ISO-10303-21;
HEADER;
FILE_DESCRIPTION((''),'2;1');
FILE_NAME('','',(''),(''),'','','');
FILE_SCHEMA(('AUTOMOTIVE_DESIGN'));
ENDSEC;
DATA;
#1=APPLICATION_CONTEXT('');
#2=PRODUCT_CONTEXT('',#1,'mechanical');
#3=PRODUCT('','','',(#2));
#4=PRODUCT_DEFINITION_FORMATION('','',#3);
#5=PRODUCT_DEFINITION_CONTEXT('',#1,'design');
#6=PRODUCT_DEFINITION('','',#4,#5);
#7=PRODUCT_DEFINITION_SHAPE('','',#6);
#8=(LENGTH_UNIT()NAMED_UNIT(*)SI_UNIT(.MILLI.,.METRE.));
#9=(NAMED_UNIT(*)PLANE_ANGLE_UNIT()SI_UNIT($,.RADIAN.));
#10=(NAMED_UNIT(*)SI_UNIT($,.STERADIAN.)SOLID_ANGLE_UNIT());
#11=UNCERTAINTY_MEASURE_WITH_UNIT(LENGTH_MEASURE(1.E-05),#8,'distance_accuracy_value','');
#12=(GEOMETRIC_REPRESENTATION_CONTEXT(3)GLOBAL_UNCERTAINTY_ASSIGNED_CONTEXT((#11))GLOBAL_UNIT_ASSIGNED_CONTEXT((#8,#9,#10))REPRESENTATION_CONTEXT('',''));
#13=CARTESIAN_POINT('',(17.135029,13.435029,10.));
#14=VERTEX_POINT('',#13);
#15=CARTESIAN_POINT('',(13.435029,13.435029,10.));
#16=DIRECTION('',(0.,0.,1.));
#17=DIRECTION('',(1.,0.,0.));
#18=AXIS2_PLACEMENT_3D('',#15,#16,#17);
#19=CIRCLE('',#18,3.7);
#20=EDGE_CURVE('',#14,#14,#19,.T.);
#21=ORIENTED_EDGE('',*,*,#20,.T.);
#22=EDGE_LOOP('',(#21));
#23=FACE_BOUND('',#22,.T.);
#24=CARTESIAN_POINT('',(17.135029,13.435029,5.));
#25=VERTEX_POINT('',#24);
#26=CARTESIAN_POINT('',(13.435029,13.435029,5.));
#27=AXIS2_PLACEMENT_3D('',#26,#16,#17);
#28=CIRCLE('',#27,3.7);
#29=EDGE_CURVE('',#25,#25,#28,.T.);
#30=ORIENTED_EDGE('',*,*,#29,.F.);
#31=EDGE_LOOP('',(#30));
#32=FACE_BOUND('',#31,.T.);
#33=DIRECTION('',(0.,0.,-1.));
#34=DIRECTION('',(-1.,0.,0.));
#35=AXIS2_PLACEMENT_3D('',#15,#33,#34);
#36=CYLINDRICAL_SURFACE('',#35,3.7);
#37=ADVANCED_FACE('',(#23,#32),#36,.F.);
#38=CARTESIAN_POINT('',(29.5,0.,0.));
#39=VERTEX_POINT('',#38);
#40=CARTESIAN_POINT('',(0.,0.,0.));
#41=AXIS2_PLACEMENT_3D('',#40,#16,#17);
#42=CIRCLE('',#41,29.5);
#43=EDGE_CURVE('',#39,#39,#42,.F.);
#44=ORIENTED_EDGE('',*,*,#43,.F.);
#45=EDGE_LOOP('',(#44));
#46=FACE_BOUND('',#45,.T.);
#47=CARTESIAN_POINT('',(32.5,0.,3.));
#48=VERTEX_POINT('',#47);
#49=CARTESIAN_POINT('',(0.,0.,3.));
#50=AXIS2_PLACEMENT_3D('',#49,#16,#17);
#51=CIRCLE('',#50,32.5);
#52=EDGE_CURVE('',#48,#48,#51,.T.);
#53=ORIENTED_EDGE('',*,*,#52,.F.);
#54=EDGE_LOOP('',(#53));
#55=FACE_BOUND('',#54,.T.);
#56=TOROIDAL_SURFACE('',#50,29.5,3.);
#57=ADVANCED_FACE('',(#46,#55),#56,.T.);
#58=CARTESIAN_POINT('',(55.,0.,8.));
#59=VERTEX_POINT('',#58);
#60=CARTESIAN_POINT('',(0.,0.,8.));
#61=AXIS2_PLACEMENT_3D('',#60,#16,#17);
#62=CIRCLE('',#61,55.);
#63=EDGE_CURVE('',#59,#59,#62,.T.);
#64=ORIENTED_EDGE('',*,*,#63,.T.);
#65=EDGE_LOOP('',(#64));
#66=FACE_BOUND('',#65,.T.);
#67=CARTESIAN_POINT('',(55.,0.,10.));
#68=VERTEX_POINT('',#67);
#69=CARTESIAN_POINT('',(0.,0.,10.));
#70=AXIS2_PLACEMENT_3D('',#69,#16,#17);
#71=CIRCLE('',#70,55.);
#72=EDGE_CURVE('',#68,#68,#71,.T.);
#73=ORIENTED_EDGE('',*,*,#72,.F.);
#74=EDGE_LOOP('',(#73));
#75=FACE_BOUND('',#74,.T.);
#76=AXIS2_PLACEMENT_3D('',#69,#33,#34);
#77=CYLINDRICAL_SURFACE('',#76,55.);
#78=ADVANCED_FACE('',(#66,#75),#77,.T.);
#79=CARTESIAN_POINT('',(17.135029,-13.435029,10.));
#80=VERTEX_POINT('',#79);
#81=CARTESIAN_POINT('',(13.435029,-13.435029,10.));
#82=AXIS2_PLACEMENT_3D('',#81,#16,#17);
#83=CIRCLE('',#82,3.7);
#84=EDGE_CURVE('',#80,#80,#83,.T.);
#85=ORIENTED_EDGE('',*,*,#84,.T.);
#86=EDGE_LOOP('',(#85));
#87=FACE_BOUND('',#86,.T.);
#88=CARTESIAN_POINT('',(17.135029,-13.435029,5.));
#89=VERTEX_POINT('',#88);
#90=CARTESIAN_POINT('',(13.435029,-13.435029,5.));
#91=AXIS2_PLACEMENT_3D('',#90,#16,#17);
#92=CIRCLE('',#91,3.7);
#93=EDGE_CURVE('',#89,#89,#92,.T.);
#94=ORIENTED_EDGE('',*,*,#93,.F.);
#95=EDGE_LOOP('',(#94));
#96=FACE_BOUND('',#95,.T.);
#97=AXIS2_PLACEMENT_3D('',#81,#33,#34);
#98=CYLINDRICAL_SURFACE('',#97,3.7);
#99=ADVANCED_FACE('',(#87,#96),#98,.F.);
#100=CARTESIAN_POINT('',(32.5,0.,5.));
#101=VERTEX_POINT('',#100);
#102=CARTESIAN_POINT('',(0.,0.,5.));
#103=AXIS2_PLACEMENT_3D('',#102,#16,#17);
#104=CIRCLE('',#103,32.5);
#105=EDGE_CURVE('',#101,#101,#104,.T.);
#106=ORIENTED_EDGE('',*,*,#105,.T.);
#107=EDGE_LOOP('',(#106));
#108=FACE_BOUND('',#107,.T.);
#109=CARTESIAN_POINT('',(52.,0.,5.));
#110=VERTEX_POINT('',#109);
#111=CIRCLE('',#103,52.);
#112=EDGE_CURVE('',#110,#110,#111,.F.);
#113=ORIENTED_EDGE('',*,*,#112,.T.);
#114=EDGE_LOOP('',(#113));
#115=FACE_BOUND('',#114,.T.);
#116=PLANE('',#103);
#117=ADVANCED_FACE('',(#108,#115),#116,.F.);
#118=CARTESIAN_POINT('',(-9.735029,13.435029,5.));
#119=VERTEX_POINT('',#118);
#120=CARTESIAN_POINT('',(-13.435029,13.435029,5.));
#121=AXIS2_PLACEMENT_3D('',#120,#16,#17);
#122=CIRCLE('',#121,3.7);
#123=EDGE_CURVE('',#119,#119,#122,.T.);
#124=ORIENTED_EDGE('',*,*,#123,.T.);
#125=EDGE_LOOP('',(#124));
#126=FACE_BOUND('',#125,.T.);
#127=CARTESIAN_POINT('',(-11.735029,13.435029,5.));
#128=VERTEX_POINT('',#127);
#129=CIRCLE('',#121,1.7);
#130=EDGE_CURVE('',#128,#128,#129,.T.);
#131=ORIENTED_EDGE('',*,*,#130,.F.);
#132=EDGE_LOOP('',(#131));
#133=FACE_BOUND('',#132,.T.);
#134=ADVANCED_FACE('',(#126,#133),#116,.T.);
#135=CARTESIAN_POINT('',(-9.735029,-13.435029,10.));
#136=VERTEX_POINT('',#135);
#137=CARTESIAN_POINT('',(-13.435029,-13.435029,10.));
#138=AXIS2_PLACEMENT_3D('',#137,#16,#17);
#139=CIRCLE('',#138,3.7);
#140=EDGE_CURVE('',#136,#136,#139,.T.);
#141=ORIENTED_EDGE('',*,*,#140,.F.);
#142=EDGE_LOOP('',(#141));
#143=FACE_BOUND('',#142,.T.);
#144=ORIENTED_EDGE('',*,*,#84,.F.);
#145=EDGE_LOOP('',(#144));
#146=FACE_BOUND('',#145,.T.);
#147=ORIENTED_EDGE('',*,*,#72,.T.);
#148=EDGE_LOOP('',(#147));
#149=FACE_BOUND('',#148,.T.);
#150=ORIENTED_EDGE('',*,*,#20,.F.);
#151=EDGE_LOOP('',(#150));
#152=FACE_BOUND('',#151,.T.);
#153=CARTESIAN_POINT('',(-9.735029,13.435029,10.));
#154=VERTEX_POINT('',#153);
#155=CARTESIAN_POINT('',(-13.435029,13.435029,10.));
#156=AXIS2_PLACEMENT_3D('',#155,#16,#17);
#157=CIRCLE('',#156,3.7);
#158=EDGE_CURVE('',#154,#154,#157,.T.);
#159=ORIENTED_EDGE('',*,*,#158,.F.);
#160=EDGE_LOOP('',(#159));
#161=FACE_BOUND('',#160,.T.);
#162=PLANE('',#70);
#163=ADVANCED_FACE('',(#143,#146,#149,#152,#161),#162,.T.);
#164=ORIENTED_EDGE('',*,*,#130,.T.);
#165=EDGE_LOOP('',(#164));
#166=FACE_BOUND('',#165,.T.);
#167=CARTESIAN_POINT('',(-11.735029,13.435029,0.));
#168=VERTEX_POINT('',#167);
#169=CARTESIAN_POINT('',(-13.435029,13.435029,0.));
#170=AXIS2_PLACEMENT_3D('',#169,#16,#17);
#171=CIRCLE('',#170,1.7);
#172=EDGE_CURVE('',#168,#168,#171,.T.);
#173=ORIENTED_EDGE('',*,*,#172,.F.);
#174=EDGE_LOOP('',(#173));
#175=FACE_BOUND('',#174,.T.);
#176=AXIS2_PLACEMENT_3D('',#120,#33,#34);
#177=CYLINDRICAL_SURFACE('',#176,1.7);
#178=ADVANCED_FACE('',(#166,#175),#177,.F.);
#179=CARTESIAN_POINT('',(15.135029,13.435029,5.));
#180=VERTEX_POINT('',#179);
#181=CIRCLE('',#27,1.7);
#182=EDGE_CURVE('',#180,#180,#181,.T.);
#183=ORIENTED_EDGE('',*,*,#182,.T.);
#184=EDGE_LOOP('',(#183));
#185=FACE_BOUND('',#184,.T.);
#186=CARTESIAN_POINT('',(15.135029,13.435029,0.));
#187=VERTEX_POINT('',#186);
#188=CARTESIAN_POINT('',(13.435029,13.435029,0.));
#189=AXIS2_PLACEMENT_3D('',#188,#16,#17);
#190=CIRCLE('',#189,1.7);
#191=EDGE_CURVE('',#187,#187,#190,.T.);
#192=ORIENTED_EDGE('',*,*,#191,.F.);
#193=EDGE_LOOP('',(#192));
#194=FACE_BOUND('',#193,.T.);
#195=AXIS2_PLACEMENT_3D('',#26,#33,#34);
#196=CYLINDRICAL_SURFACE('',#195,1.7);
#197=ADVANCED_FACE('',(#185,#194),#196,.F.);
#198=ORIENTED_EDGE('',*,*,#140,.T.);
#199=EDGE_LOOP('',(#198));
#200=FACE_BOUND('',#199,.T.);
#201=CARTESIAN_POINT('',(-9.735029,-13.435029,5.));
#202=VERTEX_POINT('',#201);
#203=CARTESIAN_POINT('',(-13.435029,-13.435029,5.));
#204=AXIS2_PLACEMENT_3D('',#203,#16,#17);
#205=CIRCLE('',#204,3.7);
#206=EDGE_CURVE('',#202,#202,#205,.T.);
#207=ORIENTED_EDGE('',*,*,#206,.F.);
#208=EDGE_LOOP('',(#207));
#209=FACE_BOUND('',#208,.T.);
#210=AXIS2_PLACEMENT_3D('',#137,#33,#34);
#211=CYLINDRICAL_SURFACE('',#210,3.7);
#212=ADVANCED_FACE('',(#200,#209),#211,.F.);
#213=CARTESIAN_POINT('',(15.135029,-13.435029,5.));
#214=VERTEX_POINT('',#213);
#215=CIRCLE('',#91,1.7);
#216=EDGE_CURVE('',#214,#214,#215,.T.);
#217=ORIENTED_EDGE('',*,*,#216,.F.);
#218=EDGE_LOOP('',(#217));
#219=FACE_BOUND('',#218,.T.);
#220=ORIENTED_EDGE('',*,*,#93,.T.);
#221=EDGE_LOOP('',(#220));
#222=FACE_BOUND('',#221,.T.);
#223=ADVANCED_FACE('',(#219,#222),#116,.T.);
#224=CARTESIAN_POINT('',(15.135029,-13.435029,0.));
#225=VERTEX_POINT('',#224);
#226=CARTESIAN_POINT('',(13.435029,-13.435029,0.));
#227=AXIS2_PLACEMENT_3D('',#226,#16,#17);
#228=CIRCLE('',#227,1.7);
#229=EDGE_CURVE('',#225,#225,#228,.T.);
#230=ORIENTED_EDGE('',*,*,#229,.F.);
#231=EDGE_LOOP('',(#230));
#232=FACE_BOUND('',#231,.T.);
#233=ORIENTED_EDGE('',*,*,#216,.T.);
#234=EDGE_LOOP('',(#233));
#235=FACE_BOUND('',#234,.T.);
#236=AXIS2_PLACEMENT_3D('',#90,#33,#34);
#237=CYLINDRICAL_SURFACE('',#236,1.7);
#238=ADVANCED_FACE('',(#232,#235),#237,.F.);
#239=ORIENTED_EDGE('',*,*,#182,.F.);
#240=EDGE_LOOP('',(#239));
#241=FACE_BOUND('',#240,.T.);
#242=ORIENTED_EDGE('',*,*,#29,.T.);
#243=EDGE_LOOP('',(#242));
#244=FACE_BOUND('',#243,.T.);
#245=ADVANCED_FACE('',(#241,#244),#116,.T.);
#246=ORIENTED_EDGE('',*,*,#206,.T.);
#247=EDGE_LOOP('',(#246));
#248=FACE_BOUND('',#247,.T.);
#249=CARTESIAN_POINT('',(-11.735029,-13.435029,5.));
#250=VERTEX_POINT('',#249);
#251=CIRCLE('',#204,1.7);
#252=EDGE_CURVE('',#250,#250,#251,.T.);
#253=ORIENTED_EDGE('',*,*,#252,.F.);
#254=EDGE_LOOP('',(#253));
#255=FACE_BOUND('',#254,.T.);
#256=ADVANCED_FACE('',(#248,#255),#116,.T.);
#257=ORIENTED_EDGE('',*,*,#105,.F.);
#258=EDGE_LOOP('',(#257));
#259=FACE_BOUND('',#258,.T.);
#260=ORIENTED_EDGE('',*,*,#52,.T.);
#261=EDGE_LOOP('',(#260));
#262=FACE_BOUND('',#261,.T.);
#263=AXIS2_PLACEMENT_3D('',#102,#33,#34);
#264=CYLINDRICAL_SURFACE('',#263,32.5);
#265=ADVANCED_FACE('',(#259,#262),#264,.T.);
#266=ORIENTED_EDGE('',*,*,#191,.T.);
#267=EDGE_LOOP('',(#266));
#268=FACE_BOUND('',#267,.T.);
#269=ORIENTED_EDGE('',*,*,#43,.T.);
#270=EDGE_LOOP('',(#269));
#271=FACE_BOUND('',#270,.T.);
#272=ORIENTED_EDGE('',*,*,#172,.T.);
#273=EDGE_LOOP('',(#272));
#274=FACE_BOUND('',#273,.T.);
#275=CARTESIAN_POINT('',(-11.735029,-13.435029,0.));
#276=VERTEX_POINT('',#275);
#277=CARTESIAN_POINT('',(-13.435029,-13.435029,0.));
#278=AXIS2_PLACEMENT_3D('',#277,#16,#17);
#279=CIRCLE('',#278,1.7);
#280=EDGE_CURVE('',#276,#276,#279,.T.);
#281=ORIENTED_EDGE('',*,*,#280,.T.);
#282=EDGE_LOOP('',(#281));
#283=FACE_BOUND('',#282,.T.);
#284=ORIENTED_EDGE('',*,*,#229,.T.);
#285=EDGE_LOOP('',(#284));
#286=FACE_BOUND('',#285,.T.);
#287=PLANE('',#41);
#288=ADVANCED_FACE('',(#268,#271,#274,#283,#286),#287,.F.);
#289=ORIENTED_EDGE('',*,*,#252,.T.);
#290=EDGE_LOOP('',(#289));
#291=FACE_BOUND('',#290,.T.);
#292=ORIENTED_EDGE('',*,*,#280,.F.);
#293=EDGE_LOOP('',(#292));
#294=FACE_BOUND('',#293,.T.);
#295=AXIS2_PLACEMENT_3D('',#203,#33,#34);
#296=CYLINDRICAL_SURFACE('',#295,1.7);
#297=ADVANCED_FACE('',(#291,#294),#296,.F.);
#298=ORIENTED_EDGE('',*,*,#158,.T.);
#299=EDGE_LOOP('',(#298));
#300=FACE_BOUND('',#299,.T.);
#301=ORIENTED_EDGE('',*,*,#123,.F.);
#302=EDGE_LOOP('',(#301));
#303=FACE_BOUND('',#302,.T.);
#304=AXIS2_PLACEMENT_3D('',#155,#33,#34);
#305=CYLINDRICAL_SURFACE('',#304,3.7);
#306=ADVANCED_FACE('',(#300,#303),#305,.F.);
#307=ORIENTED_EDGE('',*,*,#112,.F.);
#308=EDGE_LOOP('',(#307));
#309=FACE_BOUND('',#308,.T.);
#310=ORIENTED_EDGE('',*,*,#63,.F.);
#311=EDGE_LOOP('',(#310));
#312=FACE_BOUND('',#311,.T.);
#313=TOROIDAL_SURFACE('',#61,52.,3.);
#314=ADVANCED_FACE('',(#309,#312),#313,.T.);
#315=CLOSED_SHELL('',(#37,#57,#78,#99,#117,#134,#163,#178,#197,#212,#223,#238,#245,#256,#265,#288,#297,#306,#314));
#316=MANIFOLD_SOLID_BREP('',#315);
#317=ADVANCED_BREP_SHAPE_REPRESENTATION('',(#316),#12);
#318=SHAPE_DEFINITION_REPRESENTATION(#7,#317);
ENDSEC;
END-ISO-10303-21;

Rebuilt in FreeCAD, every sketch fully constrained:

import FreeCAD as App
import Part
import Sketcher

V = App.Vector


def edges_at(feature, points):
    """Names of the edges that pass closest to the given points."""
    edges = feature.Shape.Edges
    near = lambda p: min(range(len(edges)), key=lambda i: edges[i].distToShape(Part.Vertex(*p))[0])
    return sorted({f"Edge{near(p) + 1}" for p in points})

doc = App.newDocument("Part")
body = doc.addObject("PartDesign::Body", "Body")

sketch1 = body.newObject("Sketcher::SketchObject", "Sketch")
sketch1.AttachmentSupport = (doc.getObject("XY_Plane"), [""])
sketch1.MapMode = "FlatFace"
sketch1.addGeometry(Part.Circle(V(0, 0, 0), V(0, 0, 1), 32.5), False)
sketch1.addGeometry(Part.Circle(V(-13.435029, -13.435029, 0), V(0, 0, 1), 1.7), False)
sketch1.addGeometry(Part.Circle(V(13.435029, -13.435029, 0), V(0, 0, 1), 1.7), False)
sketch1.addGeometry(Part.Circle(V(-13.435029, 13.435029, 0), V(0, 0, 1), 1.7), False)
sketch1.addGeometry(Part.Circle(V(13.435029, 13.435029, 0), V(0, 0, 1), 1.7), False)
sketch1.addConstraint(Sketcher.Constraint("Coincident", 0, 3, -1, 1))
sketch1.addConstraint(Sketcher.Constraint("Equal", 1, 2))
sketch1.addConstraint(Sketcher.Constraint("Equal", 2, 3))
sketch1.addConstraint(Sketcher.Constraint("Equal", 3, 4))
sketch1.addConstraint(Sketcher.Constraint("Symmetric", 2, 3, 3, 3, -1, 1))
sketch1.addConstraint(Sketcher.Constraint("Symmetric", 1, 3, 4, 3, -1, 1))
sketch1.addConstraint(Sketcher.Constraint("Symmetric", 1, 3, 2, 3, -2))
sketch1.addConstraint(Sketcher.Constraint("Diameter", 0, 65.0))
sketch1.addConstraint(Sketcher.Constraint("Diameter", 1, 3.4))
sketch1.addConstraint(Sketcher.Constraint("DistanceX", 1, 3, -1, 1, 13.435029))
sketch1.addConstraint(Sketcher.Constraint("DistanceY", 1, 3, -1, 1, 13.435029))
pad1 = body.newObject("PartDesign::Pad", "Pad")
pad1.Profile = sketch1
pad1.Length = 5

sketch2 = body.newObject("Sketcher::SketchObject", "Sketch001")
sketch2.AttachmentSupport = (doc.getObject("XY_Plane"), [""])
sketch2.MapMode = "FlatFace"
sketch2.AttachmentOffset = App.Placement(V(0, 0, 5), App.Rotation())
sketch2.addGeometry(Part.Circle(V(0, 0, 0), V(0, 0, 1), 55), False)
sketch2.addGeometry(Part.Circle(V(-13.435029, -13.435029, 0), V(0, 0, 1), 3.7), False)
sketch2.addGeometry(Part.Circle(V(13.435029, -13.435029, 0), V(0, 0, 1), 3.7), False)
sketch2.addGeometry(Part.Circle(V(-13.435029, 13.435029, 0), V(0, 0, 1), 3.7), False)
sketch2.addGeometry(Part.Circle(V(13.435029, 13.435029, 0), V(0, 0, 1), 3.7), False)
sketch2.addConstraint(Sketcher.Constraint("Coincident", 0, 3, -1, 1))
sketch2.addConstraint(Sketcher.Constraint("Equal", 1, 2))
sketch2.addConstraint(Sketcher.Constraint("Equal", 2, 3))
sketch2.addConstraint(Sketcher.Constraint("Equal", 3, 4))
sketch2.addConstraint(Sketcher.Constraint("Symmetric", 2, 3, 3, 3, -1, 1))
sketch2.addConstraint(Sketcher.Constraint("Symmetric", 1, 3, 4, 3, -1, 1))
sketch2.addConstraint(Sketcher.Constraint("Symmetric", 1, 3, 2, 3, -2))
sketch2.addConstraint(Sketcher.Constraint("Diameter", 0, 110.0))
sketch2.addConstraint(Sketcher.Constraint("Diameter", 1, 7.4))
sketch2.addConstraint(Sketcher.Constraint("DistanceX", 1, 3, -1, 1, 13.435029))
sketch2.addConstraint(Sketcher.Constraint("DistanceY", 1, 3, -1, 1, 13.435029))
pad2 = body.newObject("PartDesign::Pad", "Pad001")
pad2.Profile = sketch2
pad2.Length = 5
doc.recompute()

fillet = body.newObject("PartDesign::Fillet", "Fillet")
fillet.Base = (pad2, edges_at(pad2, [(-32.5, 0, 0)]))
fillet.Radius = 3
doc.recompute()

fillet2 = body.newObject("PartDesign::Fillet", "Fillet001")
fillet2.Base = (fillet, edges_at(fillet, [(-55, 0, 5)]))
fillet2.Radius = 3

doc.recompute()
